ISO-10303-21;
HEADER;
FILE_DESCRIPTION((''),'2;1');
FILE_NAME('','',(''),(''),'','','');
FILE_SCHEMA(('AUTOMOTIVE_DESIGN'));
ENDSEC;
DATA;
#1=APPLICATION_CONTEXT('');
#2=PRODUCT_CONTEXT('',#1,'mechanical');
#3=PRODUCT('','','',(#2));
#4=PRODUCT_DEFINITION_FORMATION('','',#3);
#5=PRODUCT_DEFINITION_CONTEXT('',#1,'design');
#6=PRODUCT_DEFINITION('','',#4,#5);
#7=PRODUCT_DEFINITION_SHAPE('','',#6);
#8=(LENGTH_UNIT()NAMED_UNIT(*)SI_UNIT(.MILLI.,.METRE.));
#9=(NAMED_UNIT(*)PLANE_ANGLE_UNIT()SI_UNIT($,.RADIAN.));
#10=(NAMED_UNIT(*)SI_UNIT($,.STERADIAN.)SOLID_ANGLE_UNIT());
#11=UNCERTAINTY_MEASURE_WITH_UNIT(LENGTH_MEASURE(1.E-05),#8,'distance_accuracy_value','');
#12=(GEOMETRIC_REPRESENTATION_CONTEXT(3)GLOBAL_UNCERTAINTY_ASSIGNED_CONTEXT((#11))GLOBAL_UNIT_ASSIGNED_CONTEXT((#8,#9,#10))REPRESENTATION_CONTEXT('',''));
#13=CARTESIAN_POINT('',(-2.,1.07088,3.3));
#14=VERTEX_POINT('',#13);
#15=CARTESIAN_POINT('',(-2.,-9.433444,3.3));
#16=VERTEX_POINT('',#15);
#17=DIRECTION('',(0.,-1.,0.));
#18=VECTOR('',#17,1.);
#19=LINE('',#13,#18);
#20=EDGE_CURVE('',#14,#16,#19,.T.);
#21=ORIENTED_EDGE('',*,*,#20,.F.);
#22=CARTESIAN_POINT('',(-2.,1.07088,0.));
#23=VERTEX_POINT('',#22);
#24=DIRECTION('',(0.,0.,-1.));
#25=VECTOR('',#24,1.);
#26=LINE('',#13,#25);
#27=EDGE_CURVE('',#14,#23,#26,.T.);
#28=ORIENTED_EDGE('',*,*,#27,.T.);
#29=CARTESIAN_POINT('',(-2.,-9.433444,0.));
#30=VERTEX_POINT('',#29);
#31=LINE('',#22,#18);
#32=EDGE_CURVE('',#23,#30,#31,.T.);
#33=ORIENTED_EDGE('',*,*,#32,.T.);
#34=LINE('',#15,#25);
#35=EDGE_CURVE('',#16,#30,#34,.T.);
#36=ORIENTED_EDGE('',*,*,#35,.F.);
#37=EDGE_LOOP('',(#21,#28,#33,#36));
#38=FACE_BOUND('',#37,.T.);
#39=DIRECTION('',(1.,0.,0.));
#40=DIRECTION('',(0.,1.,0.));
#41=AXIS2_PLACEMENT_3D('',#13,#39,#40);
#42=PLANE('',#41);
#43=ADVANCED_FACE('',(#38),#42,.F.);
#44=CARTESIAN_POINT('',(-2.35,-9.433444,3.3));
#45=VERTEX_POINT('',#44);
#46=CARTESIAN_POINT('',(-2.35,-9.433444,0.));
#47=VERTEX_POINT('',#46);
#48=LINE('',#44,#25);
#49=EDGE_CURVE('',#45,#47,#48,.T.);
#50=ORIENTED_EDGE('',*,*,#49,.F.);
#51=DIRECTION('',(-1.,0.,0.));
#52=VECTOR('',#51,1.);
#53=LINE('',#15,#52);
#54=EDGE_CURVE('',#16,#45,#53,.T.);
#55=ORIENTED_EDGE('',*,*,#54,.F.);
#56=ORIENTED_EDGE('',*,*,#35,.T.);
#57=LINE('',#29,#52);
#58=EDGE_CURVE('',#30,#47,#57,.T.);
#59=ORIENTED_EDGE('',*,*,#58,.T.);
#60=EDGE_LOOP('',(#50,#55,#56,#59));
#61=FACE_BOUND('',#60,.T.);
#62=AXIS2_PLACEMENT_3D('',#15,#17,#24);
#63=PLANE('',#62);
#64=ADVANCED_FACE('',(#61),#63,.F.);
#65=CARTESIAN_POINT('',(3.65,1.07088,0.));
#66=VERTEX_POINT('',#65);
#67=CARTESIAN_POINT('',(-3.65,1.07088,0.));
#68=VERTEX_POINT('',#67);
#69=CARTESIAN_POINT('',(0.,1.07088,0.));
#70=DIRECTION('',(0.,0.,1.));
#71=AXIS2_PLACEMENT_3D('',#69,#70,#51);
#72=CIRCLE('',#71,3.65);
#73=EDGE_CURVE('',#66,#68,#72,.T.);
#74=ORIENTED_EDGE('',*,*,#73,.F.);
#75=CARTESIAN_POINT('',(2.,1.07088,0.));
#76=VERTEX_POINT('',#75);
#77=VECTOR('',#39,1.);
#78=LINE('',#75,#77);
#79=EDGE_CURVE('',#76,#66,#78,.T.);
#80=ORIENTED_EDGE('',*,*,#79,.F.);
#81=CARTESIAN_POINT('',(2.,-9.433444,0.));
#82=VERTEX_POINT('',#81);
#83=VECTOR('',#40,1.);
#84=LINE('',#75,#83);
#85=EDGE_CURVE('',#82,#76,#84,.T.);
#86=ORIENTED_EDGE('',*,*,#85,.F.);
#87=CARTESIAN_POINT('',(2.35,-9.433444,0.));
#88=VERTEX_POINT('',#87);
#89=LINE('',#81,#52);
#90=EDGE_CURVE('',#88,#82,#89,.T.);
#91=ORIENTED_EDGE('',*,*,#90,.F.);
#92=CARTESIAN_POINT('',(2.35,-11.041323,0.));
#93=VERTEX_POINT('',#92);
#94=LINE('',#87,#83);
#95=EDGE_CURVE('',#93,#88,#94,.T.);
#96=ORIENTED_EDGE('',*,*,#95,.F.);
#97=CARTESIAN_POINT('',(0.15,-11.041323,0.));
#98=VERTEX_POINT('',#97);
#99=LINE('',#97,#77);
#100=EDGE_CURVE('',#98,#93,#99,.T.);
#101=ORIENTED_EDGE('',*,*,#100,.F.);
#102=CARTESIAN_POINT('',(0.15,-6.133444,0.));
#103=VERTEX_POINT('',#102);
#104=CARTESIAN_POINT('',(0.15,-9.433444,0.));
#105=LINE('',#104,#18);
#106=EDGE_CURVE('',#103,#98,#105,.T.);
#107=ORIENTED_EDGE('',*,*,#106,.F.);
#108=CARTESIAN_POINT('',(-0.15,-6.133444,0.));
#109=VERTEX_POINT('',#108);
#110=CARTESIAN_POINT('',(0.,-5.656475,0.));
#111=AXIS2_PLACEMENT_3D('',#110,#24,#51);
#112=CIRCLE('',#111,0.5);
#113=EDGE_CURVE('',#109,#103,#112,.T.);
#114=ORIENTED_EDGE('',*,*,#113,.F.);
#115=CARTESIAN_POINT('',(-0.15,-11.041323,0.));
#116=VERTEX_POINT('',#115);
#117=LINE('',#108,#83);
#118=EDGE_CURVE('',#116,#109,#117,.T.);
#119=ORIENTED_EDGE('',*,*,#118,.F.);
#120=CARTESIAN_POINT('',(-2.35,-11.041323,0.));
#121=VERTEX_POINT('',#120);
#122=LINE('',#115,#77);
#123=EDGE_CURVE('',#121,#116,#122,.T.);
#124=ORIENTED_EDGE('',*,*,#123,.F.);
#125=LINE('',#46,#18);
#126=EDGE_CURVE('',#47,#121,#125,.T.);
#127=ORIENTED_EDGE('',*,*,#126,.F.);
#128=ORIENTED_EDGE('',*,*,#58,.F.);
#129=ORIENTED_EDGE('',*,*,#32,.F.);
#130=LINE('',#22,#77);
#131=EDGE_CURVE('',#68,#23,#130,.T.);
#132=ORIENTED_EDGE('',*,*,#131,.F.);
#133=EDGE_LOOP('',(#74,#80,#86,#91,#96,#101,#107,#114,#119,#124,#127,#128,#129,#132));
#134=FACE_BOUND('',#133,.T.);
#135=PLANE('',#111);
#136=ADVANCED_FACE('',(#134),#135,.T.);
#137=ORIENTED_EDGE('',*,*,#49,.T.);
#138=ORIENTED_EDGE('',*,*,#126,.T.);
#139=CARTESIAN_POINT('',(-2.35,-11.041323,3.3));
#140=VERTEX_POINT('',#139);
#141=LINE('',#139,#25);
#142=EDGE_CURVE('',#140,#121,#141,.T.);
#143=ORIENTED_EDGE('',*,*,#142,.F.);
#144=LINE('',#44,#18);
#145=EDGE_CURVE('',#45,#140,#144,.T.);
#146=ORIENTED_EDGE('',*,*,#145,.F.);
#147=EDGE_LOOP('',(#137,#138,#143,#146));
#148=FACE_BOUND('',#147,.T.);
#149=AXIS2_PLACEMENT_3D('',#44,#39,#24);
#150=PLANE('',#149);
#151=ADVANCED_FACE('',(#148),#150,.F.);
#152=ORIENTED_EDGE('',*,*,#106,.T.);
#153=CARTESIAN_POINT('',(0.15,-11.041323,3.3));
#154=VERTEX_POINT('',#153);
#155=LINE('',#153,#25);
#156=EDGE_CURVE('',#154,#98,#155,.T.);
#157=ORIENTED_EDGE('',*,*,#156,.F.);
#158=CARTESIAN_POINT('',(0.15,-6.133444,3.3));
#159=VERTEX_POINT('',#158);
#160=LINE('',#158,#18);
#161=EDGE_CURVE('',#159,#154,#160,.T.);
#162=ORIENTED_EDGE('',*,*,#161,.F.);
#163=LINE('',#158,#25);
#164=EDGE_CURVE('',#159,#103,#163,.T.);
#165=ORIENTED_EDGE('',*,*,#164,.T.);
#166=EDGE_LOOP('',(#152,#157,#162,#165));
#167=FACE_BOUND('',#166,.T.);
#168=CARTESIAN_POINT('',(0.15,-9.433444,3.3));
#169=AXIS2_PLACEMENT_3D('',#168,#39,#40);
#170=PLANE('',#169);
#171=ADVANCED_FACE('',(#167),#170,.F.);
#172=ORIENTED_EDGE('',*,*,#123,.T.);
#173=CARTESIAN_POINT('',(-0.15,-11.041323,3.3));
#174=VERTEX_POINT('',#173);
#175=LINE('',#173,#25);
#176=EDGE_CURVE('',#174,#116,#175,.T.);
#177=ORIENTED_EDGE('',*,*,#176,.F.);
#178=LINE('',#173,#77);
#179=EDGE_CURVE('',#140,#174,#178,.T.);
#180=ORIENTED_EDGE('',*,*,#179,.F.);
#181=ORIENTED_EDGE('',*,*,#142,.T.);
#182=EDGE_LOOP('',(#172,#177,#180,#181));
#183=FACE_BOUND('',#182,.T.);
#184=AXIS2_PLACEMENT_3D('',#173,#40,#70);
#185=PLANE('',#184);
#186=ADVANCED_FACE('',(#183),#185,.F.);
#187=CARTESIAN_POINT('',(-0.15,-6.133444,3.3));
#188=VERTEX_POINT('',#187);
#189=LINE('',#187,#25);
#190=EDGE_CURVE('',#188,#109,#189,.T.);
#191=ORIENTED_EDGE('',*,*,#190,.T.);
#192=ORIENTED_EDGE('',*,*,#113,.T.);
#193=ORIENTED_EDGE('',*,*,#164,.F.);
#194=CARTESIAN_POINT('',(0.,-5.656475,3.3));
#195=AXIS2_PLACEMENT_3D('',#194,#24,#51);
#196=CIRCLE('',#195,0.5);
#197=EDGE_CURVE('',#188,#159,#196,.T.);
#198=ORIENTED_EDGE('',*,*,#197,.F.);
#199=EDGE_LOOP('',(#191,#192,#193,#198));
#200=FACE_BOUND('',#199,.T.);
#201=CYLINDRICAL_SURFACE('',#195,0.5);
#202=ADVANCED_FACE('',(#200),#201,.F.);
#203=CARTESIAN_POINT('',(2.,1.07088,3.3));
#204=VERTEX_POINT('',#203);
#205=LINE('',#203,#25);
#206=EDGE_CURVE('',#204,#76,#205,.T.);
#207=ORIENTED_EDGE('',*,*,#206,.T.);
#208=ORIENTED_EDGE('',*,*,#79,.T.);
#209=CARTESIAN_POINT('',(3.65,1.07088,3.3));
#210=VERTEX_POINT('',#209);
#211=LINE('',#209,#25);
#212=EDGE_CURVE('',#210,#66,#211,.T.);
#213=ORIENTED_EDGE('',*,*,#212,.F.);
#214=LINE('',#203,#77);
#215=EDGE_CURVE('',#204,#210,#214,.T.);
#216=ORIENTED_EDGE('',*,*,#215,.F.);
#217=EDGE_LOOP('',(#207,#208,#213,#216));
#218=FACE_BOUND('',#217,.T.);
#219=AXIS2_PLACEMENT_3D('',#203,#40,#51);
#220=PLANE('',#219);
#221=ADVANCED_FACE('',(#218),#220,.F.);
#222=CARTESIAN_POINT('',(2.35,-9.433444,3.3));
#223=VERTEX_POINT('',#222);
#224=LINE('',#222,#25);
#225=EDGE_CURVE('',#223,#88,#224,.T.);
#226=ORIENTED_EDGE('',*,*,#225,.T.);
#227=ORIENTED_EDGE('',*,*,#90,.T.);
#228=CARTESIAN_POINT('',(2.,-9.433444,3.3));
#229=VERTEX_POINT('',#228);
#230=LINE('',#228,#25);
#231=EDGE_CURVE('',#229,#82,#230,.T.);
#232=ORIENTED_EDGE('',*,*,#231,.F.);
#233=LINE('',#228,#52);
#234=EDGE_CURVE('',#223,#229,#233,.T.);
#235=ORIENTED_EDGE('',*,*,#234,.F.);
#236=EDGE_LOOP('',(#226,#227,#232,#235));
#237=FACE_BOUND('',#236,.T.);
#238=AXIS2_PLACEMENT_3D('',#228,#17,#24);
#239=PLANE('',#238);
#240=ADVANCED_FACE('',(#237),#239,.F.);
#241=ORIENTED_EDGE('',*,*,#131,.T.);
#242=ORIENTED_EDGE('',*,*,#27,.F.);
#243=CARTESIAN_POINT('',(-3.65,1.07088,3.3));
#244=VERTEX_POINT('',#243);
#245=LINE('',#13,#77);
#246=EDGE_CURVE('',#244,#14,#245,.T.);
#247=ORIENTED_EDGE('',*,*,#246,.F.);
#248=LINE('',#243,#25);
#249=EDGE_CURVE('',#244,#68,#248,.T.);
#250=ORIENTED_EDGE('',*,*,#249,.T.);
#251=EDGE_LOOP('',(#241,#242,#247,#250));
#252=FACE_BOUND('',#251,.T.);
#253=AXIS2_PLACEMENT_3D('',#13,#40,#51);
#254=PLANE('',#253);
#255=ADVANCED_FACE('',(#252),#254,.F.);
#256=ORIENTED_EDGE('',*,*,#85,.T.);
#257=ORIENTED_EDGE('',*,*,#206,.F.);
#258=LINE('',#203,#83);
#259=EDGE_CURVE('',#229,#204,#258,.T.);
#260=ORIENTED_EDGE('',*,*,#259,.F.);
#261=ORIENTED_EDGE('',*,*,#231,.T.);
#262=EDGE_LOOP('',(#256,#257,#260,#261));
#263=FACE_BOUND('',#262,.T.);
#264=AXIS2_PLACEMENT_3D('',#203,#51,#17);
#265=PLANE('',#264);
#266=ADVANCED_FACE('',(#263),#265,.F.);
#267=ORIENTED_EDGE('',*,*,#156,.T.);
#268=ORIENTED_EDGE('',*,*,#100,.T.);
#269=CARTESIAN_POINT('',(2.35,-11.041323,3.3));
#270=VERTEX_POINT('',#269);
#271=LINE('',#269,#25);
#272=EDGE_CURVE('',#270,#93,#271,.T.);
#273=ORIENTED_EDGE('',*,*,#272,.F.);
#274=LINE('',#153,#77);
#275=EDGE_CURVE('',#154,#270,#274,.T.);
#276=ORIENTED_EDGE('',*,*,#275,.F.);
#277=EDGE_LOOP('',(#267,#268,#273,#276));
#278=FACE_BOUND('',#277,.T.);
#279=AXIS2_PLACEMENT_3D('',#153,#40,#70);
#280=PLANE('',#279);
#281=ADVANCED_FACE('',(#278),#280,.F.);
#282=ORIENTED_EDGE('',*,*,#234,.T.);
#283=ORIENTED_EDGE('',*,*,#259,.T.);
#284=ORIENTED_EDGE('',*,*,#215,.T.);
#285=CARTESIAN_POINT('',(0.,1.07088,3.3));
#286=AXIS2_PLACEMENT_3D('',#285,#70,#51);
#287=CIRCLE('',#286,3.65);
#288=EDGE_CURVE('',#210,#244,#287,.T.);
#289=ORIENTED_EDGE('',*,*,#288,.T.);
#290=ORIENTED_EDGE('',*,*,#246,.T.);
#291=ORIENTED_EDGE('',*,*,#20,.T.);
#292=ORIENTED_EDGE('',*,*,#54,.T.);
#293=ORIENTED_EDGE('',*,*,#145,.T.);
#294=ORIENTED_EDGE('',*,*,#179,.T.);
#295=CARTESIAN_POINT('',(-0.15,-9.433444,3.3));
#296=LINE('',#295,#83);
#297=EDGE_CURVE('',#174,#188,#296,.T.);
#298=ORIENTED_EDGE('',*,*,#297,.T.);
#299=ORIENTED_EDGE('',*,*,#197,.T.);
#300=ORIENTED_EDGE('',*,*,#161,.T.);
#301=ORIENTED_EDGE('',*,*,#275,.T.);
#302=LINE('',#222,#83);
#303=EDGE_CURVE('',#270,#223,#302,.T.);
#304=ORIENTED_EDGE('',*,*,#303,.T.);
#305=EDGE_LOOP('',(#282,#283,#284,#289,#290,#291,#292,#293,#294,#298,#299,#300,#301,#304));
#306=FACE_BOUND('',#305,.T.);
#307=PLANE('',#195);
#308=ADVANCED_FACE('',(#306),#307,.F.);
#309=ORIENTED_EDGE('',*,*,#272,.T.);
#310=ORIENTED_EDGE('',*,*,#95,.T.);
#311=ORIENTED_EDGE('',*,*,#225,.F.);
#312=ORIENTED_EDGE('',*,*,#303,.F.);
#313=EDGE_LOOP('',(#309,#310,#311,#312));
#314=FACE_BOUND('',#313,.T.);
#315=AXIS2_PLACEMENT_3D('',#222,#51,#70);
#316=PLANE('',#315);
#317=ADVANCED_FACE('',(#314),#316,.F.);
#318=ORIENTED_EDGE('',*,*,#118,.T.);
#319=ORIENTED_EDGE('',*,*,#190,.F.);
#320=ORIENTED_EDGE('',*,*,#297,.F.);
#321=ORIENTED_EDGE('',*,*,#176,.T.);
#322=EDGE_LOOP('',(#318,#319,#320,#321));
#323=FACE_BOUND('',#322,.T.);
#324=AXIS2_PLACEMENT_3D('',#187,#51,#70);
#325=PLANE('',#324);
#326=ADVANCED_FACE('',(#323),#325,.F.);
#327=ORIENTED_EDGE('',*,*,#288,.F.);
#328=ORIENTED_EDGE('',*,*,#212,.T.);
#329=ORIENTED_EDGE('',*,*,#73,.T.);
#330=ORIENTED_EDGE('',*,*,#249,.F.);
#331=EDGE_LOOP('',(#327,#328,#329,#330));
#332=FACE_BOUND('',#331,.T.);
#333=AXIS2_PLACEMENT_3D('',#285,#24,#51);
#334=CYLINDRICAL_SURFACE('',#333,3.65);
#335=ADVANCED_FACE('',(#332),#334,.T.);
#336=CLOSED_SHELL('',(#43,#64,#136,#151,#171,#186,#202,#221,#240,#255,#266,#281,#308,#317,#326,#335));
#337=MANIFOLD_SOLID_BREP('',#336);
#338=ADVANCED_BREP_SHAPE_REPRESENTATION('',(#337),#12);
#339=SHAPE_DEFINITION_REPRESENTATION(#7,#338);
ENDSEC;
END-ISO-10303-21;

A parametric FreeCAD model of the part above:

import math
import FreeCAD as App
import Part
import Sketcher

V = App.Vector
Q = App.Units.Quantity

doc = App.newDocument("Part")
body = doc.addObject("PartDesign::Body", "Body")

# Sketch on XY plane
sketch1 = body.newObject("Sketcher::SketchObject", "Sketch")
sketch1.AttachmentSupport = (doc.getObject("XY_Plane"), [""])
sketch1.MapMode = "FlatFace"
sketch1.addGeometry(Part.LineSegment(V(-0.15, -11.04, 0), V(-0.15, -6.13, 0)), False)
sketch1.addGeometry(Part.ArcOfCircle(Part.Circle(V(0, -5.66, 0), V(0, 0, 1), 0.5), math.radians(-73), math.radians(253)), False)
sketch1.addGeometry(Part.LineSegment(V(0.15, -6.13, 0), V(0.15, -11.04, 0)), False)
sketch1.addGeometry(Part.LineSegment(V(0.15, -11.04, 0), V(2.35, -11.04, 0)), False)
sketch1.addGeometry(Part.LineSegment(V(2.35, -11.04, 0), V(2.35, -9.43, 0)), False)
sketch1.addGeometry(Part.LineSegment(V(2.35, -9.43, 0), V(2, -9.43, 0)), False)
sketch1.addGeometry(Part.LineSegment(V(2, -9.43, 0), V(2, 1.07, 0)), False)
sketch1.addGeometry(Part.LineSegment(V(2, 1.07, 0), V(3.65, 1.07, 0)), False)
sketch1.addGeometry(Part.ArcOfCircle(Part.Circle(V(0, 1.07, 0), V(0, 0, 1), 3.65), math.radians(0), math.radians(180)), False)
sketch1.addGeometry(Part.LineSegment(V(-3.65, 1.07, 0), V(-2, 1.07, 0)), False)
sketch1.addGeometry(Part.LineSegment(V(-2, 1.07, 0), V(-2, -9.43, 0)), False)
sketch1.addGeometry(Part.LineSegment(V(-2, -9.43, 0), V(-2.35, -9.43, 0)), False)
sketch1.addGeometry(Part.LineSegment(V(-2.35, -9.43, 0), V(-2.35, -11.04, 0)), False)
sketch1.addGeometry(Part.LineSegment(V(-2.35, -11.04, 0), V(-0.15, -11.04, 0)), False)
sketch1.addConstraint(Sketcher.Constraint("Coincident", 0, 2, 1, 2))
sketch1.addConstraint(Sketcher.Constraint("Coincident", 1, 1, 2, 1))
sketch1.addConstraint(Sketcher.Constraint("Coincident", 2, 2, 3, 1))
sketch1.addConstraint(Sketcher.Constraint("Coincident", 3, 2, 4, 1))
sketch1.addConstraint(Sketcher.Constraint("Coincident", 4, 2, 5, 1))
sketch1.addConstraint(Sketcher.Constraint("Coincident", 5, 2, 6, 1))
sketch1.addConstraint(Sketcher.Constraint("Coincident", 6, 2, 7, 1))
sketch1.addConstraint(Sketcher.Constraint("Coincident", 7, 2, 8, 1))
sketch1.addConstraint(Sketcher.Constraint("Coincident", 8, 2, 9, 1))
sketch1.addConstraint(Sketcher.Constraint("Coincident", 9, 2, 10, 1))
sketch1.addConstraint(Sketcher.Constraint("Coincident", 10, 2, 11, 1))
sketch1.addConstraint(Sketcher.Constraint("Coincident", 11, 2, 12, 1))
sketch1.addConstraint(Sketcher.Constraint("Coincident", 12, 2, 13, 1))
sketch1.addConstraint(Sketcher.Constraint("Coincident", 13, 2, 0, 1))
sketch1.addConstraint(Sketcher.Constraint("Vertical", 0))
sketch1.addConstraint(Sketcher.Constraint("Vertical", 2))
sketch1.addConstraint(Sketcher.Constraint("Horizontal", 3))
sketch1.addConstraint(Sketcher.Constraint("Vertical", 4))
sketch1.addConstraint(Sketcher.Constraint("Horizontal", 5))
sketch1.addConstraint(Sketcher.Constraint("Vertical", 6))
sketch1.addConstraint(Sketcher.Constraint("Horizontal", 7))
sketch1.addConstraint(Sketcher.Constraint("Horizontal", 9))
sketch1.addConstraint(Sketcher.Constraint("Vertical", 10))
sketch1.addConstraint(Sketcher.Constraint("Horizontal", 11))
sketch1.addConstraint(Sketcher.Constraint("Vertical", 12))
sketch1.addConstraint(Sketcher.Constraint("Horizontal", 13))
sketch1.addConstraint(Sketcher.Constraint("Symmetric", 0, 2, 1, 1, -2))
sketch1.addConstraint(Sketcher.Constraint("Symmetric", 7, 2, 8, 2, -2))
sketch1.addConstraint(Sketcher.Constraint("Symmetric", 5, 2, 10, 2, -2))
sketch1.addConstraint(Sketcher.Constraint("Symmetric", 3, 2, 12, 2, -2))
sketch1.addConstraint(Sketcher.Constraint("Horizontal", 8, 3, 6, 2))
sketch1.addConstraint(Sketcher.Constraint("Radius", 1, Q("0.5 mm")))
sketch1.addConstraint(Sketcher.Constraint("Radius", 8, Q("3.65 mm")))
sketch1.addConstraint(Sketcher.Constraint("DistanceX", 3, 1, 3, 2, Q("2.2 mm")))
sketch1.addConstraint(Sketcher.Constraint("DistanceX", -1, 1, 5, 2, Q("2 mm")))
sketch1.addConstraint(Sketcher.Constraint("DistanceX", 5, 2, 5, 1, Q("0.35 mm")))
sketch1.addConstraint(Sketcher.Constraint("DistanceY", 4, 2, 1, 1, Q("3.3 mm")))
sketch1.addConstraint(Sketcher.Constraint("DistanceY", 0, 1, 0, 2, Q("4.907879 mm")))
sketch1.addConstraint(Sketcher.Constraint("DistanceY", 6, 1, 6, 2, Q("10.504324 mm")))
sketch1.addConstraint(Sketcher.Constraint("DistanceY", -1, 1, 8, 3, Q("1.07088 mm")))
pad1 = body.newObject("PartDesign::Pad", "Pad")
pad1.Profile = sketch1
pad1.Length = 3.3

doc.recompute()
